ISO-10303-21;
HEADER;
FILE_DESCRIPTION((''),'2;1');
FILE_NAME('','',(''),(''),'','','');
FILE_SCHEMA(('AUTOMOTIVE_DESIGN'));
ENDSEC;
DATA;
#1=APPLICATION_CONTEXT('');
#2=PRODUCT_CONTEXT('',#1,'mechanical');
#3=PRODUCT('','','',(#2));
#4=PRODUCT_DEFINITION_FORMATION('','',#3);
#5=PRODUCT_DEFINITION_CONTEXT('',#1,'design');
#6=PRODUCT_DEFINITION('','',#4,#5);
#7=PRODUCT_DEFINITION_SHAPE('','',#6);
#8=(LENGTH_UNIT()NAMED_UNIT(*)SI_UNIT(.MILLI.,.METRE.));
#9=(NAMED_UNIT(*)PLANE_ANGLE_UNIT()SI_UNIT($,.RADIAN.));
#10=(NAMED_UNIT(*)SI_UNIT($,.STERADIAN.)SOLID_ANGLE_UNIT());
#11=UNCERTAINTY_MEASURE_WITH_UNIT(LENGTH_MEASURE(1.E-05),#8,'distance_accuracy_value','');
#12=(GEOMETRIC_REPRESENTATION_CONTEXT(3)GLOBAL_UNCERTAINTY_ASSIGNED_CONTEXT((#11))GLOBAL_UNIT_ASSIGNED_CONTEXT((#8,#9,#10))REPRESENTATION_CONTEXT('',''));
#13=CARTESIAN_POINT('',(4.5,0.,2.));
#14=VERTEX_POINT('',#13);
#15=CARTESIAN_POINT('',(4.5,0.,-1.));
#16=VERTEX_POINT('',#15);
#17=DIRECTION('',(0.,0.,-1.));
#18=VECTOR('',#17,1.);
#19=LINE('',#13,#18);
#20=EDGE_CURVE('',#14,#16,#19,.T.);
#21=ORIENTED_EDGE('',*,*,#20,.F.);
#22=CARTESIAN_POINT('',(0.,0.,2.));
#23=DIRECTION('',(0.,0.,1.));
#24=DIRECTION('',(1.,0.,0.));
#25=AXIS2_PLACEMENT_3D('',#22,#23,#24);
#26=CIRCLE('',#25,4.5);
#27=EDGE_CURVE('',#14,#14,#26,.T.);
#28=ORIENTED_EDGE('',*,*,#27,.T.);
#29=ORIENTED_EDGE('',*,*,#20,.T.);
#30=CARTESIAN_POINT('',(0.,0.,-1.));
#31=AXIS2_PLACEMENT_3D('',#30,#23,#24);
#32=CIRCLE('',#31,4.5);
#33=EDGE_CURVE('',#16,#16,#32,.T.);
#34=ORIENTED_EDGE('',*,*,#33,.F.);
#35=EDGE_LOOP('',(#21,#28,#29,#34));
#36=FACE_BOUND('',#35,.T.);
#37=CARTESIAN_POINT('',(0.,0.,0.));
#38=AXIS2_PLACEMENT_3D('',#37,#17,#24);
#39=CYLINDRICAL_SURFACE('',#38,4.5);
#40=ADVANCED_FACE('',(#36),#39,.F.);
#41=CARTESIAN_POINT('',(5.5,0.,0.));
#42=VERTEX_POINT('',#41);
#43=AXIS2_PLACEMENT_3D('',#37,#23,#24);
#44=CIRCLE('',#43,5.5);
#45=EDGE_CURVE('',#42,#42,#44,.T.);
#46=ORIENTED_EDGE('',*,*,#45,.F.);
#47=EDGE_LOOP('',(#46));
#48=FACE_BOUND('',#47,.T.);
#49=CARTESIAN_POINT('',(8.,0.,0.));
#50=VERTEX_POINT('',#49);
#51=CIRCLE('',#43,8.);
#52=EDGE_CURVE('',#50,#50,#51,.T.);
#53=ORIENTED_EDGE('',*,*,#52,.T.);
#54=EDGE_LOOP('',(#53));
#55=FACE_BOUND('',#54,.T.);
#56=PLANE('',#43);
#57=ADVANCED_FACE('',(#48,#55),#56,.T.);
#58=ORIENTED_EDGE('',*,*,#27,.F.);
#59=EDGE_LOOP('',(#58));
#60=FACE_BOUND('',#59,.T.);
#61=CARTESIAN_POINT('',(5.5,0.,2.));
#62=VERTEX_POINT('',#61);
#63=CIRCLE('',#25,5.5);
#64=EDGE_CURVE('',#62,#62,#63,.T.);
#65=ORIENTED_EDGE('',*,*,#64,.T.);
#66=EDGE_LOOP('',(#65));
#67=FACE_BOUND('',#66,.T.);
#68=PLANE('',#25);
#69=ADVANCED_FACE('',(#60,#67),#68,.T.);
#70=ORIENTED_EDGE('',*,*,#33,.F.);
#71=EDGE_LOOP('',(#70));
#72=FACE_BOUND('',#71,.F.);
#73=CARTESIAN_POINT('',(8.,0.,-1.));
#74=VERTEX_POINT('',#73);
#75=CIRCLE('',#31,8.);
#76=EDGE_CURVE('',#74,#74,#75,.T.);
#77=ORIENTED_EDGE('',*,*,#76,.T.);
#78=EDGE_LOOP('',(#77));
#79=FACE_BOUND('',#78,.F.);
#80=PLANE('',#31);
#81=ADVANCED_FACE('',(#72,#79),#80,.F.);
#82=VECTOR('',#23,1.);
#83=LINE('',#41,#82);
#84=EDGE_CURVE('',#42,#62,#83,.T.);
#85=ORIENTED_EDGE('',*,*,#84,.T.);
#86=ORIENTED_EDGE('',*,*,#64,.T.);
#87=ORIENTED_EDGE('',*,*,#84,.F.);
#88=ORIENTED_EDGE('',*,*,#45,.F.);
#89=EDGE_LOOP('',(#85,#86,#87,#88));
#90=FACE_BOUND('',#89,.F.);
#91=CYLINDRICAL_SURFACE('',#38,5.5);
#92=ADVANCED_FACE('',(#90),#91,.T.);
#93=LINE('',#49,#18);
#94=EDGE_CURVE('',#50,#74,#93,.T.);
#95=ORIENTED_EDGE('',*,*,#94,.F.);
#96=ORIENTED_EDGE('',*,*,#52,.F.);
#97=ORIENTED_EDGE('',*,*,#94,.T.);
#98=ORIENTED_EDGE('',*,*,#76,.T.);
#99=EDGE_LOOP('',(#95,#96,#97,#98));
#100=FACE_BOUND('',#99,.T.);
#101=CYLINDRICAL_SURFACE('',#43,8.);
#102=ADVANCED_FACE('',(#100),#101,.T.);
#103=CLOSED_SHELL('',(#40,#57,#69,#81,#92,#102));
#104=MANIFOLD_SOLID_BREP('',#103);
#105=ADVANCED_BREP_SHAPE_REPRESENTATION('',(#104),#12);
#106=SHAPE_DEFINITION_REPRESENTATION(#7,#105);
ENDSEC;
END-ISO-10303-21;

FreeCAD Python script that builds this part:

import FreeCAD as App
import Part
import Sketcher

doc = App.newDocument("Part")
body = doc.addObject("PartDesign::Body", "Body")

# Sketch on XY plane
sketch1 = doc.addObject("Sketcher::SketchObject", "Sketch")
body.addObject(sketch1)
sketch1.AttachmentSupport = (doc.XY_Plane, [""])
sketch1.MapMode = "FlatFace"
sketch1.addGeometry(Part.Circle(App.Vector(0, 0, 0), App.Vector(0, 0, 1), 8), False)
sketch1.addGeometry(Part.Circle(App.Vector(0, 0, 0), App.Vector(0, 0, 1), 4.5), False)
sketch1.addConstraint(Sketcher.Constraint("Coincident", 0, 3, -1, 1))
sketch1.addConstraint(Sketcher.Constraint("Coincident", 1, 3, -1, 1))
sketch1.addConstraint(Sketcher.Constraint("Diameter", 0, 16.0))
sketch1.addConstraint(Sketcher.Constraint("Diameter", 1, 9.0))
pad1 = doc.addObject("PartDesign::Pad", "Pad")
body.addObject(pad1)
pad1.Profile = sketch1
pad1.Length = 1
pad1.Reversed = True

# Sketch on XY plane
sketch2 = doc.addObject("Sketcher::SketchObject", "Sketch001")
body.addObject(sketch2)
sketch2.AttachmentSupport = (doc.XY_Plane, [""])
sketch2.MapMode = "FlatFace"
sketch2.addGeometry(Part.Circle(App.Vector(0, 0, 0), App.Vector(0, 0, 1), 5.5), False)
sketch2.addGeometry(Part.Circle(App.Vector(0, 0, 0), App.Vector(0, 0, 1), 4.5), False)
sketch2.addConstraint(Sketcher.Constraint("Coincident", 0, 3, -1, 1))
sketch2.addConstraint(Sketcher.Constraint("Coincident", 1, 3, -1, 1))
sketch2.addConstraint(Sketcher.Constraint("Diameter", 0, 11.0))
sketch2.addConstraint(Sketcher.Constraint("Diameter", 1, 9.0))
pad2 = doc.addObject("PartDesign::Pad", "Pad001")
body.addObject(pad2)
pad2.Profile = sketch2
pad2.Length = 2

doc.recompute()
